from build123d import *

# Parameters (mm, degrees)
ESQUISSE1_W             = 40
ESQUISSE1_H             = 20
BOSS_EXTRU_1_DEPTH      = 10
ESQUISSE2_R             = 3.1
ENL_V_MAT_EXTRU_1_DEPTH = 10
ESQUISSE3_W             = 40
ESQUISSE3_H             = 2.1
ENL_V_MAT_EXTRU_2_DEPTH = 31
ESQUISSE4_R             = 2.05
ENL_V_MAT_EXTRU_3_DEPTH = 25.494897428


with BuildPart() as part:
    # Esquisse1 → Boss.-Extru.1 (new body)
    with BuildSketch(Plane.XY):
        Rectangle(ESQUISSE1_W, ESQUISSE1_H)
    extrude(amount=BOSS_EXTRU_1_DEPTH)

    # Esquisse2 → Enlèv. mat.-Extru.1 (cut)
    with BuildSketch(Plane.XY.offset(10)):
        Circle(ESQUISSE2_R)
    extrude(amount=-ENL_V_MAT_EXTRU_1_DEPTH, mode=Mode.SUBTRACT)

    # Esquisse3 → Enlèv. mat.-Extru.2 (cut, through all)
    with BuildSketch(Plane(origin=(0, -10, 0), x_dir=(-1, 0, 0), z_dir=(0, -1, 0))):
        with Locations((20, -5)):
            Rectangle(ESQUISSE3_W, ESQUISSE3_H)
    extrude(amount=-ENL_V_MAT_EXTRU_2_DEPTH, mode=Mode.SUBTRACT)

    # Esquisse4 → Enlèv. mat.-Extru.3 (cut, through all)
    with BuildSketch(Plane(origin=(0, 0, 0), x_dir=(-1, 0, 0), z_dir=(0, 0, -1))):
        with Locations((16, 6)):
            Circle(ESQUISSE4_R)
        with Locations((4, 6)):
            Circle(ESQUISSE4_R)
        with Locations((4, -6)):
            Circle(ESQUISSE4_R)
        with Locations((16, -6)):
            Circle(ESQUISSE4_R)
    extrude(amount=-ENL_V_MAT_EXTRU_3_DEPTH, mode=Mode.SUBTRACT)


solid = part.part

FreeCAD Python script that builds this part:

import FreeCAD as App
import Part
import Sketcher


def add_polygon(sketch, points):
    """Adds a closed chain of lines whose ends are joined by coincident constraints."""
    first, n = sketch.GeometryCount, len(points)
    for a, b in zip(points, points[1:] + points[:1]):
        sketch.addGeometry(Part.LineSegment(App.Vector(*a, 0), App.Vector(*b, 0)), False)
    for i in range(n):
        sketch.addConstraint(Sketcher.Constraint("Coincident", first + i, 2, first + (i + 1) % n, 1))

doc = App.newDocument("Part")
body = doc.addObject("PartDesign::Body", "Body")

sketch1 = body.newObject("Sketcher::SketchObject", "Sketch")
sketch1.AttachmentSupport = (doc.getObject("XY_Plane"), [""])
sketch1.MapMode = "FlatFace"
add_polygon(sketch1, [(-20, 10), (-20, -10), (20, -10), (20, 10)])
sketch1.addConstraint(Sketcher.Constraint("Vertical", 0))
sketch1.addConstraint(Sketcher.Constraint("Horizontal", 1))
sketch1.addConstraint(Sketcher.Constraint("Vertical", 2))
sketch1.addConstraint(Sketcher.Constraint("Horizontal", 3))
sketch1.addConstraint(Sketcher.Constraint("Symmetric", 0, 2, 2, 2, -1, 1))
sketch1.addConstraint(Sketcher.Constraint("DistanceX", 1, 1, 1, 2, 40.0))
sketch1.addConstraint(Sketcher.Constraint("DistanceY", 0, 2, 0, 1, 20.0))
pad1 = body.newObject("PartDesign::Pad", "Pad")
pad1.Profile = sketch1
pad1.Length = 10

sketch2 = body.newObject("Sketcher::SketchObject", "Sketch001")
sketch2.AttachmentSupport = (doc.getObject("XY_Plane"), [""])
sketch2.MapMode = "FlatFace"
sketch2.AttachmentOffset = App.Placement(App.Vector(0, 0, 10), App.Rotation())
sketch2.addGeometry(Part.Circle(App.Vector(0, 0, 0), App.Vector(0, 0, 1), 3.1), False)
sketch2.addConstraint(Sketcher.Constraint("Coincident", 0, 3, -1, 1))
sketch2.addConstraint(Sketcher.Constraint("Diameter", 0, 6.2))
pocket1 = body.newObject("PartDesign::Pocket", "Pocket")
pocket1.Profile = sketch2
pocket1.Length = 10

sketch3 = body.newObject("Sketcher::SketchObject", "Sketch002")
sketch3.AttachmentSupport = (doc.getObject("XZ_Plane"), [""])
sketch3.MapMode = "FlatFace"
sketch3.AttachmentOffset = App.Placement(App.Vector(0, 0, 10), App.Rotation())
add_polygon(sketch3, [(0, 4), (0, 6), (-40, 6), (-40, 4)])
sketch3.addConstraint(Sketcher.Constraint("Vertical", 0))
sketch3.addConstraint(Sketcher.Constraint("Horizontal", 1))
sketch3.addConstraint(Sketcher.Constraint("Vertical", 2))
sketch3.addConstraint(Sketcher.Constraint("Horizontal", 3))
sketch3.addConstraint(Sketcher.Constraint("PointOnObject", 0, 2, -2))
sketch3.addConstraint(Sketcher.Constraint("DistanceX", 1, 2, 1, 1, 40.0))
sketch3.addConstraint(Sketcher.Constraint("DistanceY", 0, 1, 0, 2, 2.1))
sketch3.addConstraint(Sketcher.Constraint("DistanceY", -1, 1, 0, 2, 6.05))
pocket2 = body.newObject("PartDesign::Pocket", "Pocket001")
pocket2.Profile = sketch3
pocket2.Type = "ThroughAll"

sketch4 = body.newObject("Sketcher::SketchObject", "Sketch003")
sketch4.AttachmentSupport = (doc.getObject("XY_Plane"), [""])
sketch4.MapMode = "FlatFace"
sketch4.addGeometry(Part.Circle(App.Vector(-16, 6, 0), App.Vector(0, 0, 1), 2), False)
sketch4.addGeometry(Part.Circle(App.Vector(-4, 6, 0), App.Vector(0, 0, 1), 2), False)
sketch4.addGeometry(Part.Circle(App.Vector(-4, -6, 0), App.Vector(0, 0, 1), 2), False)
sketch4.addGeometry(Part.Circle(App.Vector(-16, -6, 0), App.Vector(0, 0, 1), 2), False)
sketch4.addConstraint(Sketcher.Constraint("Equal", 0, 1))
sketch4.addConstraint(Sketcher.Constraint("Equal", 1, 2))
sketch4.addConstraint(Sketcher.Constraint("Equal", 2, 3))
sketch4.addConstraint(Sketcher.Constraint("Symmetric", 1, 3, 2, 3, -1))
sketch4.addConstraint(Sketcher.Constraint("Symmetric", 0, 3, 3, 3, -1))
sketch4.addConstraint(Sketcher.Constraint("Horizontal", 0, 3, 1, 3))
sketch4.addConstraint(Sketcher.Constraint("Diameter", 0, 4.1))
sketch4.addConstraint(Sketcher.Constraint("DistanceX", 0, 3, -1, 1, 16.0))
sketch4.addConstraint(Sketcher.Constraint("DistanceY", -1, 1, 0, 3, 6.0))
sketch4.addConstraint(Sketcher.Constraint("DistanceX", 1, 3, -1, 1, 4.0))
pocket3 = body.newObject("PartDesign::Pocket", "Pocket002")
pocket3.Profile = sketch4
pocket3.Type = "ThroughAll"
pocket3.Reversed = True

doc.recompute()
